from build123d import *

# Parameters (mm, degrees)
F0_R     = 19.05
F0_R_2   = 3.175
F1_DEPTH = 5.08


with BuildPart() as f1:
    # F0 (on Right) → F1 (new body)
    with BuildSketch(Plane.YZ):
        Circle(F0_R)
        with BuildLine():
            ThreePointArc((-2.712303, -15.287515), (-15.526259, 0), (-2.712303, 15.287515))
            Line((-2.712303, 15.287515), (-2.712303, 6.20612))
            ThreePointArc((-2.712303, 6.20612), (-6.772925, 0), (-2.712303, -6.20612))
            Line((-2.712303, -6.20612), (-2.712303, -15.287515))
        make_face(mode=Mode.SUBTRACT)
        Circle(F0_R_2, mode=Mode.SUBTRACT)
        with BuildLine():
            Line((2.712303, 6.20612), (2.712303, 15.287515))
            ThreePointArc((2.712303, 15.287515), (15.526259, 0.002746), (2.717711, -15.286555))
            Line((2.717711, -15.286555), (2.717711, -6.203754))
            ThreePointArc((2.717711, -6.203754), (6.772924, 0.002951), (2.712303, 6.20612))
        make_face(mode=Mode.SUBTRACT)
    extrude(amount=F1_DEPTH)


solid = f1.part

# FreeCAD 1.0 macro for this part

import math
import FreeCAD as App
import Part
import Sketcher

V = App.Vector
Q = App.Units.Quantity

doc = App.newDocument("Part")
params = doc.addObject("Spreadsheet::Sheet", "Params")
for row, (alias, value) in enumerate([
    ("sketch1_diameter", "1.5 in"),
    ("sketch1_diameter2", "0.25 in"),
    ("pad1_length", "0.2 in"),
], start=1):
    params.set(f"A{row}", alias)
    params.set(f"B{row}", "=" + value)
    params.setAlias(f"B{row}", alias)

body = doc.addObject("PartDesign::Body", "Body")

sketch1 = body.newObject("Sketcher::SketchObject", "Sketch")
sketch1.AttachmentSupport = (doc.getObject("YZ_Plane"), [""])
sketch1.MapMode = "FlatFace"
sketch1.addGeometry([
    Part.Circle(V(0, 0, 0), V(0, 0, 1), 19.1),
    Part.Circle(V(0, 0, 0), V(0, 0, 1), 3.2),
    Part.LineSegment(V(-2.7, -6.2, 0), V(-2.7, -15.3, 0)),
    Part.ArcOfCircle(Part.Circle(V(0, 0, 0), V(0, 0, 1), 15.5), math.radians(100), math.radians(260)),
    Part.LineSegment(V(-2.7, 15.3, 0), V(-2.7, 6.2, 0)),
    Part.ArcOfCircle(Part.Circle(V(0, 0, 0), V(0, 0, 1), 6.8), math.radians(114), math.radians(246)),
    Part.ArcOfCircle(Part.Circle(V(0, 0, 0), V(0, 0, 1), 6.8), math.radians(-66), math.radians(66)),
    Part.LineSegment(V(2.7, 6.2, 0), V(2.7, 15.3, 0)),
    Part.ArcOfCircle(Part.Circle(V(0, 0, 0), V(0, 0, 1), 15.5), math.radians(-80), math.radians(80)),
    Part.LineSegment(V(2.7, -15.3, 0), V(2.7, -6.2, 0)),
], False)
sketch1.addConstraint([
    Sketcher.Constraint("Coincident", 2, 2, 3, 2),
    Sketcher.Constraint("Coincident", 3, 1, 4, 1),
    Sketcher.Constraint("Coincident", 4, 2, 5, 1),
    Sketcher.Constraint("Coincident", 5, 2, 2, 1),
    Sketcher.Constraint("Coincident", 6, 2, 7, 1),
    Sketcher.Constraint("Coincident", 7, 2, 8, 2),
    Sketcher.Constraint("Coincident", 8, 1, 9, 1),
    Sketcher.Constraint("Coincident", 9, 2, 6, 1),
    Sketcher.Constraint("Vertical", 2),
    Sketcher.Constraint("Vertical", 4),
    Sketcher.Constraint("Vertical", 7),
    Sketcher.Constraint("Vertical", 9),
    Sketcher.Constraint("Coincident", 0, 3, -1, 1),
    Sketcher.Constraint("Coincident", 1, 3, -1, 1),
    Sketcher.Constraint("Coincident", 3, 3, -1, 1),
    Sketcher.Constraint("Coincident", 5, 3, -1, 1),
    Sketcher.Constraint("Coincident", 6, 3, -1, 1),
    Sketcher.Constraint("Coincident", 8, 3, -1, 1),
    Sketcher.Constraint("Equal", 5, 6),
    Sketcher.Constraint("Equal", 3, 8),
    Sketcher.Constraint("Horizontal", 4, 2, 6, 2),
    Sketcher.Constraint("Vertical", 2, 2, 3, 1),
    Sketcher.Constraint("Diameter", 0, Q("1.5 in")),
    Sketcher.Constraint("Diameter", 1, Q("0.25 in")),
    Sketcher.Constraint("Radius", 3, Q("15.526258 mm")),
    Sketcher.Constraint("DistanceY", 9, 1, 9, 2, Q("9.082801 mm")),
    Sketcher.Constraint("Radius", 5, Q("6.772925 mm")),
    Sketcher.Constraint("DistanceY", 2, 2, 2, 1, Q("9.081395 mm")),
])
sketch1.setExpression("Constraints[22]", "Params.sketch1_diameter")
sketch1.setExpression("Constraints[23]", "Params.sketch1_diameter2")
pad1 = body.newObject("PartDesign::Pad", "Pad")
pad1.Profile = sketch1
pad1.setExpression("Length", "Params.pad1_length")

doc.recompute()
